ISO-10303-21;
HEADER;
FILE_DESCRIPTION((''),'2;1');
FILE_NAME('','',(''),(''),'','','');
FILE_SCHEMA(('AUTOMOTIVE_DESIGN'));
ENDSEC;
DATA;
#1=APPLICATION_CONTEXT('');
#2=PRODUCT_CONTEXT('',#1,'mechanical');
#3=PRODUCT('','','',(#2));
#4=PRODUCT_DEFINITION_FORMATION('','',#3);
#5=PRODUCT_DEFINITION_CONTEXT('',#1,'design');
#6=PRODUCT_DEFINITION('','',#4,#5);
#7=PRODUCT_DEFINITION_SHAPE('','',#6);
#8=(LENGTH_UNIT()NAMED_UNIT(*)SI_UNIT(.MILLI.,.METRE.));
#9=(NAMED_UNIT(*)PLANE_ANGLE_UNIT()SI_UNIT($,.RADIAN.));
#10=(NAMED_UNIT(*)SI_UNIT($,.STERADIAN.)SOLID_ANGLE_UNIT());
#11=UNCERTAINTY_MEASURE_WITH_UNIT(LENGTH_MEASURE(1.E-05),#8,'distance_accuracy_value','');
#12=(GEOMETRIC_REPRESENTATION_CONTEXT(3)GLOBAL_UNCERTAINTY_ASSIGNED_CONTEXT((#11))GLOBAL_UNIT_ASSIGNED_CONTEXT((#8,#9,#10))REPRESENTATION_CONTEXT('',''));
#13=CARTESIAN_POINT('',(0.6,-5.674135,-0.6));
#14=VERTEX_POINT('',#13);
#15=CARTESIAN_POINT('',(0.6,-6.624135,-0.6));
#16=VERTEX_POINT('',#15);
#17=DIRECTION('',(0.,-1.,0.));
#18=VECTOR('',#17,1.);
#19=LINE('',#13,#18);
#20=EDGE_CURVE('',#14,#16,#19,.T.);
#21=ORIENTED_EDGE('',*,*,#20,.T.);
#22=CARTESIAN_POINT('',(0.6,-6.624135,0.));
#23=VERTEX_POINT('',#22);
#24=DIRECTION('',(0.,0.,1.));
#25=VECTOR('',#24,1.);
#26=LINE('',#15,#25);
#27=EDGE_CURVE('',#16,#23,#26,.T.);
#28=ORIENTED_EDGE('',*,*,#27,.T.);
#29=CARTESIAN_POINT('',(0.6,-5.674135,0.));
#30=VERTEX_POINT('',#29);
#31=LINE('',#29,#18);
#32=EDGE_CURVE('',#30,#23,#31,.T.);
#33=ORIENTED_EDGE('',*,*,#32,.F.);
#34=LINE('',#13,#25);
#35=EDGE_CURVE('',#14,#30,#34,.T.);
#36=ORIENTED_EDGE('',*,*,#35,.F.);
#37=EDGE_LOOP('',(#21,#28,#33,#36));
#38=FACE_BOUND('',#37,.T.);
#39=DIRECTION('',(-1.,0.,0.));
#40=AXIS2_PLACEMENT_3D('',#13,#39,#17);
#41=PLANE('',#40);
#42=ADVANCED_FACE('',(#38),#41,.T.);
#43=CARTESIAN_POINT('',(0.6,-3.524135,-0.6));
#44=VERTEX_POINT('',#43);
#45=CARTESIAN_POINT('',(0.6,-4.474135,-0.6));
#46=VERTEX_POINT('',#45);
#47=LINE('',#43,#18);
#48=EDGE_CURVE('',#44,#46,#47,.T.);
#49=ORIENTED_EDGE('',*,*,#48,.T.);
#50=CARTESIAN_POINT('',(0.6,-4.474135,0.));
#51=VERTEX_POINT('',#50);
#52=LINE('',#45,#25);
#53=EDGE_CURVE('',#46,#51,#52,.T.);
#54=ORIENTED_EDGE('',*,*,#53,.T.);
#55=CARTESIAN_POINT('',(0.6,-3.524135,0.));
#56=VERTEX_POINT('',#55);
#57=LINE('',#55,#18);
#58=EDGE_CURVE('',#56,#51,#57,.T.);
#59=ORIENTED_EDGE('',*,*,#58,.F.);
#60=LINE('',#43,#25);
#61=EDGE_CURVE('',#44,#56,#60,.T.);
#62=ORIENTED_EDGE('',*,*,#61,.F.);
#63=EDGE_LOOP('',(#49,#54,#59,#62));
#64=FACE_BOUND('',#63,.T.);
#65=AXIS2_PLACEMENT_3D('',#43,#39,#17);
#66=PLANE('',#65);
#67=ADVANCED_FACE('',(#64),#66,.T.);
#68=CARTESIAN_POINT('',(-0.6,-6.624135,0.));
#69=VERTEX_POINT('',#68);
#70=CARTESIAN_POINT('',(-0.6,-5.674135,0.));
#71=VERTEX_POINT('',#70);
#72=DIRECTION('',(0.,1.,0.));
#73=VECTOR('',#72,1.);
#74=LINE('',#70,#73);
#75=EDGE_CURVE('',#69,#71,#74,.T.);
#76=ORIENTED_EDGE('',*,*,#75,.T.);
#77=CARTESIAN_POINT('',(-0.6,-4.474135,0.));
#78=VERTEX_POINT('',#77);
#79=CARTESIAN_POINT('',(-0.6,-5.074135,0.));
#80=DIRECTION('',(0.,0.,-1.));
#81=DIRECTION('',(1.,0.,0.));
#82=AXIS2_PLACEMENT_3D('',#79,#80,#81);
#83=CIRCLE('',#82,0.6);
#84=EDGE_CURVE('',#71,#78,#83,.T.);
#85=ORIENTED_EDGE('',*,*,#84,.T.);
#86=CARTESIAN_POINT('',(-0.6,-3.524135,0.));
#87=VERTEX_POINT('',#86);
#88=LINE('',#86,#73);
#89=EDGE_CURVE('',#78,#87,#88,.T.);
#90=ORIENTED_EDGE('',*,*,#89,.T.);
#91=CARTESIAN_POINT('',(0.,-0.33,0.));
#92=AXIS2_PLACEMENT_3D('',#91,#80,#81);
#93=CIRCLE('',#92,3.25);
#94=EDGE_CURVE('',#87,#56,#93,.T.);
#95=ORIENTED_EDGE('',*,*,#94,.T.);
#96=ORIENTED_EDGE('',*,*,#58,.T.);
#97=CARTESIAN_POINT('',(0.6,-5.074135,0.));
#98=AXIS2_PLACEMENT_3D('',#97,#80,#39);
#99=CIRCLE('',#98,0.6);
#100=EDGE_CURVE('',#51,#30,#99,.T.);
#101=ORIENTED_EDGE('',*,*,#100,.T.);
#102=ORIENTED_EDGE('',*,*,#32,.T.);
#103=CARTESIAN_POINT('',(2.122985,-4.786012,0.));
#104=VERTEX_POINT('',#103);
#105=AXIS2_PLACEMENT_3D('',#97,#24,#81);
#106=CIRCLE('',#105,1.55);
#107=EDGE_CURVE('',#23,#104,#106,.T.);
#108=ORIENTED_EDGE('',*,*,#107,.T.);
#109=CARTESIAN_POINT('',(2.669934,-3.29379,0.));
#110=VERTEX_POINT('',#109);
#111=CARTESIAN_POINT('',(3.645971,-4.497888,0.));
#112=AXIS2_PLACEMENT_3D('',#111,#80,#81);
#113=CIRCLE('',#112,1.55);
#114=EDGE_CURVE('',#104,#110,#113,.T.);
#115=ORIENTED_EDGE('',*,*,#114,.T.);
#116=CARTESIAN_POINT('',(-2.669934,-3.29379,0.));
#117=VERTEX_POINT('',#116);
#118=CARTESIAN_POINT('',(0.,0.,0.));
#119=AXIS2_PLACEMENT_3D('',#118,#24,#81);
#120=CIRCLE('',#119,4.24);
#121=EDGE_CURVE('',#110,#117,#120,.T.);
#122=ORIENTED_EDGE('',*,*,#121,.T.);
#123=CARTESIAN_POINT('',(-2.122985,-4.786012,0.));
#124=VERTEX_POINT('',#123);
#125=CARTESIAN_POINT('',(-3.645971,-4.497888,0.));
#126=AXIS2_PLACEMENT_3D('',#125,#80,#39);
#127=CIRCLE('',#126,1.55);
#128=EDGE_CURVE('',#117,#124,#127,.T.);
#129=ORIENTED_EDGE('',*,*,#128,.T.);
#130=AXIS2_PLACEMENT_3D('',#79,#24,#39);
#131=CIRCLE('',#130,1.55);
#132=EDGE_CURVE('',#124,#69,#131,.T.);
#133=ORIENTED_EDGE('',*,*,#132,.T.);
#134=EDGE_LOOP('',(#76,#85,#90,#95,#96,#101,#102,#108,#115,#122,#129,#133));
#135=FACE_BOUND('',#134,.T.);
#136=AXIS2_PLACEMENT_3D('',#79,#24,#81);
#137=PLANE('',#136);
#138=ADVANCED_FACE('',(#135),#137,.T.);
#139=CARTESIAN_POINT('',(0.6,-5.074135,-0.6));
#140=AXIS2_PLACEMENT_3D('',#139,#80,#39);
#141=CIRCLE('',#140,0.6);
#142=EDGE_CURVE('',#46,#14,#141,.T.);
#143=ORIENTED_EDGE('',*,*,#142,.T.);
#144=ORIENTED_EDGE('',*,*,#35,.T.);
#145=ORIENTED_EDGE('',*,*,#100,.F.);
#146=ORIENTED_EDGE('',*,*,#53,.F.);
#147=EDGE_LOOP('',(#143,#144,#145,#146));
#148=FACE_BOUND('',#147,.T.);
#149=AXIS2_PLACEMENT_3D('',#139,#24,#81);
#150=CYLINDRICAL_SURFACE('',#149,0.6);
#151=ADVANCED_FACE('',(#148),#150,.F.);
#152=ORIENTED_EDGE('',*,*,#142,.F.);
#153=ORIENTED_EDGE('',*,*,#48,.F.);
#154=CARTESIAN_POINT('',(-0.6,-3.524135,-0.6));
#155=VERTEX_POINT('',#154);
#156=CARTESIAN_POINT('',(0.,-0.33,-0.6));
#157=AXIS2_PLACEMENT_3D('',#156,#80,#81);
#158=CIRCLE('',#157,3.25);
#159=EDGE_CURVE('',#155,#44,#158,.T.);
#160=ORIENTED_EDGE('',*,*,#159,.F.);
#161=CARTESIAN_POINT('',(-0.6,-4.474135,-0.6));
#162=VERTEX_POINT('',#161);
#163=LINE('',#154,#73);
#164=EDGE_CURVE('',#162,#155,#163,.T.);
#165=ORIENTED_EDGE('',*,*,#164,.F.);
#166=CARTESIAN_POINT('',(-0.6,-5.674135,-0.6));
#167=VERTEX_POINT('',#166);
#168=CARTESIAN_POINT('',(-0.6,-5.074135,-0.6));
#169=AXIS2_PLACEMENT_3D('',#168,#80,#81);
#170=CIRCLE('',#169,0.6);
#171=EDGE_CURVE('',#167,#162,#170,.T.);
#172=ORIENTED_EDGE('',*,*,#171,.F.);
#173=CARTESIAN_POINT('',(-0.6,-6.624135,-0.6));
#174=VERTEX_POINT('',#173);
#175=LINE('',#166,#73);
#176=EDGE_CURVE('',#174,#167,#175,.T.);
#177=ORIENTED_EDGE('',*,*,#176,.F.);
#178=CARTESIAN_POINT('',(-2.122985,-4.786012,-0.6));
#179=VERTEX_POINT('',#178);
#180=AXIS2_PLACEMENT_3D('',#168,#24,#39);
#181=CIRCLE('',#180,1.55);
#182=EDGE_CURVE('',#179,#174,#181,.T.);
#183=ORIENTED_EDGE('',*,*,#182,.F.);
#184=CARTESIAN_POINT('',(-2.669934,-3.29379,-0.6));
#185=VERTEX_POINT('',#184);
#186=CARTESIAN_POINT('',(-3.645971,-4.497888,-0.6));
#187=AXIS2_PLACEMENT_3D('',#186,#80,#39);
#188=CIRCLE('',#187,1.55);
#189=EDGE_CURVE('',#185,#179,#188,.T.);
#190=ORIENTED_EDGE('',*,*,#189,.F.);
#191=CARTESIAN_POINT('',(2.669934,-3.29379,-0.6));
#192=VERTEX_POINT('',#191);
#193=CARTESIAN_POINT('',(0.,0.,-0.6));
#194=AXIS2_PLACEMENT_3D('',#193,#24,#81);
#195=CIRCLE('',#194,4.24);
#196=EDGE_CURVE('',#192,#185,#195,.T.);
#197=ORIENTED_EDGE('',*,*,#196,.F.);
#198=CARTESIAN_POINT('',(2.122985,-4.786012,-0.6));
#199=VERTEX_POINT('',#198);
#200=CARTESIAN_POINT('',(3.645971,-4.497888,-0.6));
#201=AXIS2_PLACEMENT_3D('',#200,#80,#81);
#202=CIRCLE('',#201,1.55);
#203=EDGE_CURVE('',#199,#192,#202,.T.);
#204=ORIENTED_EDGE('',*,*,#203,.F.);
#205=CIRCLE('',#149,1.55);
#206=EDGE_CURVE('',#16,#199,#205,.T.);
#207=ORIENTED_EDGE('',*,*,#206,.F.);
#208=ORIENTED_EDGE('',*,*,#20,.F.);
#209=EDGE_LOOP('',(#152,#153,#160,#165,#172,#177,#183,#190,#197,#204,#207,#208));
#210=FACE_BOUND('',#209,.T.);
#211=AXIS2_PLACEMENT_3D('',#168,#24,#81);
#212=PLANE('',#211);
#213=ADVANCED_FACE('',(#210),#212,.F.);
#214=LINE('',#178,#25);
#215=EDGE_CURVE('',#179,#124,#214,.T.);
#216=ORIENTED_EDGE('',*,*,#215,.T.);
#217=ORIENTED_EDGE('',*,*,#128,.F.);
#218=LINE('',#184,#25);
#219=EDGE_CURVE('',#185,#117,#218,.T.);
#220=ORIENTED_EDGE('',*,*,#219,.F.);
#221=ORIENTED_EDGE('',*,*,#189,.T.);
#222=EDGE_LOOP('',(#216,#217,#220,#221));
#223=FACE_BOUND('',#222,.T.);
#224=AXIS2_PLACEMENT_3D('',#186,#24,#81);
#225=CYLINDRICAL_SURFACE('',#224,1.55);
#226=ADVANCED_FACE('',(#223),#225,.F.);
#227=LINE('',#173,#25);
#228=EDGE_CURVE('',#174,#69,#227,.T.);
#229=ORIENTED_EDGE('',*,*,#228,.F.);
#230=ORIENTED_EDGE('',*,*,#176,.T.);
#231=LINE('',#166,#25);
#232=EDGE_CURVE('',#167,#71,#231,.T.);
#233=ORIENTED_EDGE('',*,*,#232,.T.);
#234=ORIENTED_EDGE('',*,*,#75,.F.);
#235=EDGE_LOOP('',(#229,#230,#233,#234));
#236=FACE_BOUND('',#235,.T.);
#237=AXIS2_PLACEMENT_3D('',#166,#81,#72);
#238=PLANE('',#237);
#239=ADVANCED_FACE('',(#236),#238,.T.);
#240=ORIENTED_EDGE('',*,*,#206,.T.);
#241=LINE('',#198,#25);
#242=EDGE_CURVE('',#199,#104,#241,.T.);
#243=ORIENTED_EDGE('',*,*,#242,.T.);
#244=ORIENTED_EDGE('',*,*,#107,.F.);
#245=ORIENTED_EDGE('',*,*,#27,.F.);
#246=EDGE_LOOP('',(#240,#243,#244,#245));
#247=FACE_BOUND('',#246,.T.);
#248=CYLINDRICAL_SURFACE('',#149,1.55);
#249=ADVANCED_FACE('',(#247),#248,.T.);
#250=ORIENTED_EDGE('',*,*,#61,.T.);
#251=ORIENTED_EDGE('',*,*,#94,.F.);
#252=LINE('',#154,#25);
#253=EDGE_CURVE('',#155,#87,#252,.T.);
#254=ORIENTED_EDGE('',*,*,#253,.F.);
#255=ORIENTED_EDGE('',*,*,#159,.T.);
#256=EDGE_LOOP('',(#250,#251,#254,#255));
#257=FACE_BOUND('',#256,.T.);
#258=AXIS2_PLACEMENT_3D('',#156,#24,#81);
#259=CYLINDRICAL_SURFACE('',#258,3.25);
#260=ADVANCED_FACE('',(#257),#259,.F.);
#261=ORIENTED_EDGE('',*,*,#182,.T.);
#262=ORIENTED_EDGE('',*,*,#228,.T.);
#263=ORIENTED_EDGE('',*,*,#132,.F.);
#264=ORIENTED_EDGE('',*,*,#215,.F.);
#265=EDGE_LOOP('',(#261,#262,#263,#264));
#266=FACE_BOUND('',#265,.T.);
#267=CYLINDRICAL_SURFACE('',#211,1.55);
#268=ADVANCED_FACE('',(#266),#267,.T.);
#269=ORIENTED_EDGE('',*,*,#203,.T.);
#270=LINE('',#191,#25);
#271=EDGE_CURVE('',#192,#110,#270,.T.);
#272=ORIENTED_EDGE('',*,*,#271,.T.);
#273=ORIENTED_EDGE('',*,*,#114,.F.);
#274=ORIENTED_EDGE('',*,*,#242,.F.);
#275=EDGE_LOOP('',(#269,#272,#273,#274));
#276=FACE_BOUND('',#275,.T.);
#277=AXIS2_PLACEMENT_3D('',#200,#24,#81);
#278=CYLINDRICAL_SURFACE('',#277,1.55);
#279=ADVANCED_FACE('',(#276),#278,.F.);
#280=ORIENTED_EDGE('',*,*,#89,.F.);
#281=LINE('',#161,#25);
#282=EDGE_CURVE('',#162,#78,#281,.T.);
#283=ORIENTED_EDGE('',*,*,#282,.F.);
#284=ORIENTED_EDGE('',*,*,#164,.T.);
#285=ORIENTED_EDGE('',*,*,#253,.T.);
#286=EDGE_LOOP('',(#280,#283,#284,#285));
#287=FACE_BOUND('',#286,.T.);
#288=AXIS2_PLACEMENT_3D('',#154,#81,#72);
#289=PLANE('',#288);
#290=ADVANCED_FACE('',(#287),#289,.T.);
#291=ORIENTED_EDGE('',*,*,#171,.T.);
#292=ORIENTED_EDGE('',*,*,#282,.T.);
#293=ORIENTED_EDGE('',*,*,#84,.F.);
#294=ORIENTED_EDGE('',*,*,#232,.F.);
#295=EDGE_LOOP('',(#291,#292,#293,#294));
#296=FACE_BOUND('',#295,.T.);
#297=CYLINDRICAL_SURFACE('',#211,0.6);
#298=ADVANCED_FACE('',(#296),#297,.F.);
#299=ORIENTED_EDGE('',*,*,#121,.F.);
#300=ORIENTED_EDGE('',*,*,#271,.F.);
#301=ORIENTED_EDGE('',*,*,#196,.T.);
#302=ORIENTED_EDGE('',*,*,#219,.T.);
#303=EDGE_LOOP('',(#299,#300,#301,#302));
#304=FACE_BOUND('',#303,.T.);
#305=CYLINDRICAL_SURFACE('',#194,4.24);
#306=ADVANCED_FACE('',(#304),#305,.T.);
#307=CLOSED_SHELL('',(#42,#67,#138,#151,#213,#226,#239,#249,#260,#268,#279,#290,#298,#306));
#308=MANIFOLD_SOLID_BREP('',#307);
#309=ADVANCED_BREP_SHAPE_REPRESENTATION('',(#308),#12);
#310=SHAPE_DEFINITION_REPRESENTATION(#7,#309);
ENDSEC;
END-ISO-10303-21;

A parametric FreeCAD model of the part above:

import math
import FreeCAD as App
import Part
import Sketcher

V = App.Vector

doc = App.newDocument("Part")
params = doc.addObject("Spreadsheet::Sheet", "Params")
for row, (alias, value) in enumerate([
    ("sketch1_radius", "0.6 mm"),
    ("sketch1_radius2", "3.25 mm"),
    ("sketch1_radius3", "1.55 mm"),
    ("sketch1_radius4", "4.24 mm"),
    ("pad1_length", "0.6 mm"),
], start=1):
    params.set(f"A{row}", alias)
    params.set(f"B{row}", "=" + value)
    params.setAlias(f"B{row}", alias)

body = doc.addObject("PartDesign::Body", "Body")

sketch1 = body.newObject("Sketcher::SketchObject", "Sketch")
sketch1.AttachmentSupport = (doc.getObject("XY_Plane"), [""])
sketch1.MapMode = "FlatFace"
sketch1.addGeometry([
    Part.LineSegment(V(-0.6, -4.5, 0), V(-0.6, -3.5, 0)),
    Part.ArcOfCircle(Part.Circle(V(0, -0.3, 0), V(0, 0, 1), 3.2), math.radians(-79), math.radians(259)),
    Part.LineSegment(V(0.6, -3.5, 0), V(0.6, -4.5, 0)),
    Part.ArcOfCircle(Part.Circle(V(0.6, -5.1, 0), V(0, 0, 1), 0.6), math.radians(-90), math.radians(90)),
    Part.LineSegment(V(0.6, -5.7, 0), V(0.6, -6.6, 0)),
    Part.ArcOfCircle(Part.Circle(V(0.6, -5.1, 0), V(0, 0, 1), 1.6), math.radians(-90), math.radians(11)),
    Part.ArcOfCircle(Part.Circle(V(3.6, -4.5, 0), V(0, 0, 1), 1.6), math.radians(129), math.radians(191)),
    Part.ArcOfCircle(Part.Circle(V(0, 0, 0), V(0, 0, 1), 4.2), math.radians(-51), math.radians(231)),
    Part.ArcOfCircle(Part.Circle(V(-3.6, -4.5, 0), V(0, 0, 1), 1.6), math.radians(-11), math.radians(51)),
    Part.ArcOfCircle(Part.Circle(V(-0.6, -5.1, 0), V(0, 0, 1), 1.6), math.radians(169), math.radians(270)),
    Part.LineSegment(V(-0.6, -6.6, 0), V(-0.6, -5.7, 0)),
    Part.ArcOfCircle(Part.Circle(V(-0.6, -5.1, 0), V(0, 0, 1), 0.6), math.radians(90), math.radians(270)),
], False)
sketch1.addConstraint([
    Sketcher.Constraint("Coincident", 0, 2, 1, 2),
    Sketcher.Constraint("Coincident", 1, 1, 2, 1),
    Sketcher.Constraint("Coincident", 2, 2, 3, 2),
    Sketcher.Constraint("Coincident", 3, 1, 4, 1),
    Sketcher.Constraint("Coincident", 4, 2, 5, 1),
    Sketcher.Constraint("Tangent", 5, 2, 6, 2),
    Sketcher.Constraint("Tangent", 6, 1, 7, 1),
    Sketcher.Constraint("Tangent", 7, 2, 8, 2),
    Sketcher.Constraint("Tangent", 8, 1, 9, 1),
    Sketcher.Constraint("Coincident", 9, 2, 10, 1),
    Sketcher.Constraint("Coincident", 10, 2, 11, 2),
    Sketcher.Constraint("Coincident", 11, 1, 0, 1),
    Sketcher.Constraint("Vertical", 0),
    Sketcher.Constraint("Vertical", 2),
    Sketcher.Constraint("Vertical", 4),
    Sketcher.Constraint("Vertical", 10),
    Sketcher.Constraint("Coincident", 7, 3, -1, 1),
    Sketcher.Constraint("Coincident", 5, 3, 3, 3),
    Sketcher.Constraint("Coincident", 11, 3, 9, 3),
    Sketcher.Constraint("Equal", 5, 6),
    Sketcher.Constraint("Equal", 6, 8),
    Sketcher.Constraint("Equal", 8, 9),
    Sketcher.Constraint("Equal", 3, 11),
    Sketcher.Constraint("Symmetric", 3, 3, 9, 3, -2),
    Sketcher.Constraint("Symmetric", 0, 2, 1, 1, -2),
    Sketcher.Constraint("Vertical", 11, 3, 0, 2),
    Sketcher.Constraint("Vertical", 2, 2, 3, 1),
    Sketcher.Constraint("Vertical", 0, 2, 9, 2),
    Sketcher.Constraint("Equal", 2, 4),
    Sketcher.Constraint("Radius", 3, 0.6),
    Sketcher.Constraint("Radius", 1, 3.25),
    Sketcher.Constraint("Radius", 5, 1.55),
    Sketcher.Constraint("Radius", 7, 4.24),
    Sketcher.Constraint("DistanceX", -1, 1, 3, 3, 0.6),
    Sketcher.Constraint("DistanceY", 1, 3, -1, 1, 0.33),
])
sketch1.setExpression("Constraints[29]", "Params.sketch1_radius")
sketch1.setExpression("Constraints[30]", "Params.sketch1_radius2")
sketch1.setExpression("Constraints[31]", "Params.sketch1_radius3")
sketch1.setExpression("Constraints[32]", "Params.sketch1_radius4")
pad1 = body.newObject("PartDesign::Pad", "Pad")
pad1.Profile = sketch1
pad1.setExpression("Length", "Params.pad1_length")
pad1.Reversed = True

doc.recompute()
